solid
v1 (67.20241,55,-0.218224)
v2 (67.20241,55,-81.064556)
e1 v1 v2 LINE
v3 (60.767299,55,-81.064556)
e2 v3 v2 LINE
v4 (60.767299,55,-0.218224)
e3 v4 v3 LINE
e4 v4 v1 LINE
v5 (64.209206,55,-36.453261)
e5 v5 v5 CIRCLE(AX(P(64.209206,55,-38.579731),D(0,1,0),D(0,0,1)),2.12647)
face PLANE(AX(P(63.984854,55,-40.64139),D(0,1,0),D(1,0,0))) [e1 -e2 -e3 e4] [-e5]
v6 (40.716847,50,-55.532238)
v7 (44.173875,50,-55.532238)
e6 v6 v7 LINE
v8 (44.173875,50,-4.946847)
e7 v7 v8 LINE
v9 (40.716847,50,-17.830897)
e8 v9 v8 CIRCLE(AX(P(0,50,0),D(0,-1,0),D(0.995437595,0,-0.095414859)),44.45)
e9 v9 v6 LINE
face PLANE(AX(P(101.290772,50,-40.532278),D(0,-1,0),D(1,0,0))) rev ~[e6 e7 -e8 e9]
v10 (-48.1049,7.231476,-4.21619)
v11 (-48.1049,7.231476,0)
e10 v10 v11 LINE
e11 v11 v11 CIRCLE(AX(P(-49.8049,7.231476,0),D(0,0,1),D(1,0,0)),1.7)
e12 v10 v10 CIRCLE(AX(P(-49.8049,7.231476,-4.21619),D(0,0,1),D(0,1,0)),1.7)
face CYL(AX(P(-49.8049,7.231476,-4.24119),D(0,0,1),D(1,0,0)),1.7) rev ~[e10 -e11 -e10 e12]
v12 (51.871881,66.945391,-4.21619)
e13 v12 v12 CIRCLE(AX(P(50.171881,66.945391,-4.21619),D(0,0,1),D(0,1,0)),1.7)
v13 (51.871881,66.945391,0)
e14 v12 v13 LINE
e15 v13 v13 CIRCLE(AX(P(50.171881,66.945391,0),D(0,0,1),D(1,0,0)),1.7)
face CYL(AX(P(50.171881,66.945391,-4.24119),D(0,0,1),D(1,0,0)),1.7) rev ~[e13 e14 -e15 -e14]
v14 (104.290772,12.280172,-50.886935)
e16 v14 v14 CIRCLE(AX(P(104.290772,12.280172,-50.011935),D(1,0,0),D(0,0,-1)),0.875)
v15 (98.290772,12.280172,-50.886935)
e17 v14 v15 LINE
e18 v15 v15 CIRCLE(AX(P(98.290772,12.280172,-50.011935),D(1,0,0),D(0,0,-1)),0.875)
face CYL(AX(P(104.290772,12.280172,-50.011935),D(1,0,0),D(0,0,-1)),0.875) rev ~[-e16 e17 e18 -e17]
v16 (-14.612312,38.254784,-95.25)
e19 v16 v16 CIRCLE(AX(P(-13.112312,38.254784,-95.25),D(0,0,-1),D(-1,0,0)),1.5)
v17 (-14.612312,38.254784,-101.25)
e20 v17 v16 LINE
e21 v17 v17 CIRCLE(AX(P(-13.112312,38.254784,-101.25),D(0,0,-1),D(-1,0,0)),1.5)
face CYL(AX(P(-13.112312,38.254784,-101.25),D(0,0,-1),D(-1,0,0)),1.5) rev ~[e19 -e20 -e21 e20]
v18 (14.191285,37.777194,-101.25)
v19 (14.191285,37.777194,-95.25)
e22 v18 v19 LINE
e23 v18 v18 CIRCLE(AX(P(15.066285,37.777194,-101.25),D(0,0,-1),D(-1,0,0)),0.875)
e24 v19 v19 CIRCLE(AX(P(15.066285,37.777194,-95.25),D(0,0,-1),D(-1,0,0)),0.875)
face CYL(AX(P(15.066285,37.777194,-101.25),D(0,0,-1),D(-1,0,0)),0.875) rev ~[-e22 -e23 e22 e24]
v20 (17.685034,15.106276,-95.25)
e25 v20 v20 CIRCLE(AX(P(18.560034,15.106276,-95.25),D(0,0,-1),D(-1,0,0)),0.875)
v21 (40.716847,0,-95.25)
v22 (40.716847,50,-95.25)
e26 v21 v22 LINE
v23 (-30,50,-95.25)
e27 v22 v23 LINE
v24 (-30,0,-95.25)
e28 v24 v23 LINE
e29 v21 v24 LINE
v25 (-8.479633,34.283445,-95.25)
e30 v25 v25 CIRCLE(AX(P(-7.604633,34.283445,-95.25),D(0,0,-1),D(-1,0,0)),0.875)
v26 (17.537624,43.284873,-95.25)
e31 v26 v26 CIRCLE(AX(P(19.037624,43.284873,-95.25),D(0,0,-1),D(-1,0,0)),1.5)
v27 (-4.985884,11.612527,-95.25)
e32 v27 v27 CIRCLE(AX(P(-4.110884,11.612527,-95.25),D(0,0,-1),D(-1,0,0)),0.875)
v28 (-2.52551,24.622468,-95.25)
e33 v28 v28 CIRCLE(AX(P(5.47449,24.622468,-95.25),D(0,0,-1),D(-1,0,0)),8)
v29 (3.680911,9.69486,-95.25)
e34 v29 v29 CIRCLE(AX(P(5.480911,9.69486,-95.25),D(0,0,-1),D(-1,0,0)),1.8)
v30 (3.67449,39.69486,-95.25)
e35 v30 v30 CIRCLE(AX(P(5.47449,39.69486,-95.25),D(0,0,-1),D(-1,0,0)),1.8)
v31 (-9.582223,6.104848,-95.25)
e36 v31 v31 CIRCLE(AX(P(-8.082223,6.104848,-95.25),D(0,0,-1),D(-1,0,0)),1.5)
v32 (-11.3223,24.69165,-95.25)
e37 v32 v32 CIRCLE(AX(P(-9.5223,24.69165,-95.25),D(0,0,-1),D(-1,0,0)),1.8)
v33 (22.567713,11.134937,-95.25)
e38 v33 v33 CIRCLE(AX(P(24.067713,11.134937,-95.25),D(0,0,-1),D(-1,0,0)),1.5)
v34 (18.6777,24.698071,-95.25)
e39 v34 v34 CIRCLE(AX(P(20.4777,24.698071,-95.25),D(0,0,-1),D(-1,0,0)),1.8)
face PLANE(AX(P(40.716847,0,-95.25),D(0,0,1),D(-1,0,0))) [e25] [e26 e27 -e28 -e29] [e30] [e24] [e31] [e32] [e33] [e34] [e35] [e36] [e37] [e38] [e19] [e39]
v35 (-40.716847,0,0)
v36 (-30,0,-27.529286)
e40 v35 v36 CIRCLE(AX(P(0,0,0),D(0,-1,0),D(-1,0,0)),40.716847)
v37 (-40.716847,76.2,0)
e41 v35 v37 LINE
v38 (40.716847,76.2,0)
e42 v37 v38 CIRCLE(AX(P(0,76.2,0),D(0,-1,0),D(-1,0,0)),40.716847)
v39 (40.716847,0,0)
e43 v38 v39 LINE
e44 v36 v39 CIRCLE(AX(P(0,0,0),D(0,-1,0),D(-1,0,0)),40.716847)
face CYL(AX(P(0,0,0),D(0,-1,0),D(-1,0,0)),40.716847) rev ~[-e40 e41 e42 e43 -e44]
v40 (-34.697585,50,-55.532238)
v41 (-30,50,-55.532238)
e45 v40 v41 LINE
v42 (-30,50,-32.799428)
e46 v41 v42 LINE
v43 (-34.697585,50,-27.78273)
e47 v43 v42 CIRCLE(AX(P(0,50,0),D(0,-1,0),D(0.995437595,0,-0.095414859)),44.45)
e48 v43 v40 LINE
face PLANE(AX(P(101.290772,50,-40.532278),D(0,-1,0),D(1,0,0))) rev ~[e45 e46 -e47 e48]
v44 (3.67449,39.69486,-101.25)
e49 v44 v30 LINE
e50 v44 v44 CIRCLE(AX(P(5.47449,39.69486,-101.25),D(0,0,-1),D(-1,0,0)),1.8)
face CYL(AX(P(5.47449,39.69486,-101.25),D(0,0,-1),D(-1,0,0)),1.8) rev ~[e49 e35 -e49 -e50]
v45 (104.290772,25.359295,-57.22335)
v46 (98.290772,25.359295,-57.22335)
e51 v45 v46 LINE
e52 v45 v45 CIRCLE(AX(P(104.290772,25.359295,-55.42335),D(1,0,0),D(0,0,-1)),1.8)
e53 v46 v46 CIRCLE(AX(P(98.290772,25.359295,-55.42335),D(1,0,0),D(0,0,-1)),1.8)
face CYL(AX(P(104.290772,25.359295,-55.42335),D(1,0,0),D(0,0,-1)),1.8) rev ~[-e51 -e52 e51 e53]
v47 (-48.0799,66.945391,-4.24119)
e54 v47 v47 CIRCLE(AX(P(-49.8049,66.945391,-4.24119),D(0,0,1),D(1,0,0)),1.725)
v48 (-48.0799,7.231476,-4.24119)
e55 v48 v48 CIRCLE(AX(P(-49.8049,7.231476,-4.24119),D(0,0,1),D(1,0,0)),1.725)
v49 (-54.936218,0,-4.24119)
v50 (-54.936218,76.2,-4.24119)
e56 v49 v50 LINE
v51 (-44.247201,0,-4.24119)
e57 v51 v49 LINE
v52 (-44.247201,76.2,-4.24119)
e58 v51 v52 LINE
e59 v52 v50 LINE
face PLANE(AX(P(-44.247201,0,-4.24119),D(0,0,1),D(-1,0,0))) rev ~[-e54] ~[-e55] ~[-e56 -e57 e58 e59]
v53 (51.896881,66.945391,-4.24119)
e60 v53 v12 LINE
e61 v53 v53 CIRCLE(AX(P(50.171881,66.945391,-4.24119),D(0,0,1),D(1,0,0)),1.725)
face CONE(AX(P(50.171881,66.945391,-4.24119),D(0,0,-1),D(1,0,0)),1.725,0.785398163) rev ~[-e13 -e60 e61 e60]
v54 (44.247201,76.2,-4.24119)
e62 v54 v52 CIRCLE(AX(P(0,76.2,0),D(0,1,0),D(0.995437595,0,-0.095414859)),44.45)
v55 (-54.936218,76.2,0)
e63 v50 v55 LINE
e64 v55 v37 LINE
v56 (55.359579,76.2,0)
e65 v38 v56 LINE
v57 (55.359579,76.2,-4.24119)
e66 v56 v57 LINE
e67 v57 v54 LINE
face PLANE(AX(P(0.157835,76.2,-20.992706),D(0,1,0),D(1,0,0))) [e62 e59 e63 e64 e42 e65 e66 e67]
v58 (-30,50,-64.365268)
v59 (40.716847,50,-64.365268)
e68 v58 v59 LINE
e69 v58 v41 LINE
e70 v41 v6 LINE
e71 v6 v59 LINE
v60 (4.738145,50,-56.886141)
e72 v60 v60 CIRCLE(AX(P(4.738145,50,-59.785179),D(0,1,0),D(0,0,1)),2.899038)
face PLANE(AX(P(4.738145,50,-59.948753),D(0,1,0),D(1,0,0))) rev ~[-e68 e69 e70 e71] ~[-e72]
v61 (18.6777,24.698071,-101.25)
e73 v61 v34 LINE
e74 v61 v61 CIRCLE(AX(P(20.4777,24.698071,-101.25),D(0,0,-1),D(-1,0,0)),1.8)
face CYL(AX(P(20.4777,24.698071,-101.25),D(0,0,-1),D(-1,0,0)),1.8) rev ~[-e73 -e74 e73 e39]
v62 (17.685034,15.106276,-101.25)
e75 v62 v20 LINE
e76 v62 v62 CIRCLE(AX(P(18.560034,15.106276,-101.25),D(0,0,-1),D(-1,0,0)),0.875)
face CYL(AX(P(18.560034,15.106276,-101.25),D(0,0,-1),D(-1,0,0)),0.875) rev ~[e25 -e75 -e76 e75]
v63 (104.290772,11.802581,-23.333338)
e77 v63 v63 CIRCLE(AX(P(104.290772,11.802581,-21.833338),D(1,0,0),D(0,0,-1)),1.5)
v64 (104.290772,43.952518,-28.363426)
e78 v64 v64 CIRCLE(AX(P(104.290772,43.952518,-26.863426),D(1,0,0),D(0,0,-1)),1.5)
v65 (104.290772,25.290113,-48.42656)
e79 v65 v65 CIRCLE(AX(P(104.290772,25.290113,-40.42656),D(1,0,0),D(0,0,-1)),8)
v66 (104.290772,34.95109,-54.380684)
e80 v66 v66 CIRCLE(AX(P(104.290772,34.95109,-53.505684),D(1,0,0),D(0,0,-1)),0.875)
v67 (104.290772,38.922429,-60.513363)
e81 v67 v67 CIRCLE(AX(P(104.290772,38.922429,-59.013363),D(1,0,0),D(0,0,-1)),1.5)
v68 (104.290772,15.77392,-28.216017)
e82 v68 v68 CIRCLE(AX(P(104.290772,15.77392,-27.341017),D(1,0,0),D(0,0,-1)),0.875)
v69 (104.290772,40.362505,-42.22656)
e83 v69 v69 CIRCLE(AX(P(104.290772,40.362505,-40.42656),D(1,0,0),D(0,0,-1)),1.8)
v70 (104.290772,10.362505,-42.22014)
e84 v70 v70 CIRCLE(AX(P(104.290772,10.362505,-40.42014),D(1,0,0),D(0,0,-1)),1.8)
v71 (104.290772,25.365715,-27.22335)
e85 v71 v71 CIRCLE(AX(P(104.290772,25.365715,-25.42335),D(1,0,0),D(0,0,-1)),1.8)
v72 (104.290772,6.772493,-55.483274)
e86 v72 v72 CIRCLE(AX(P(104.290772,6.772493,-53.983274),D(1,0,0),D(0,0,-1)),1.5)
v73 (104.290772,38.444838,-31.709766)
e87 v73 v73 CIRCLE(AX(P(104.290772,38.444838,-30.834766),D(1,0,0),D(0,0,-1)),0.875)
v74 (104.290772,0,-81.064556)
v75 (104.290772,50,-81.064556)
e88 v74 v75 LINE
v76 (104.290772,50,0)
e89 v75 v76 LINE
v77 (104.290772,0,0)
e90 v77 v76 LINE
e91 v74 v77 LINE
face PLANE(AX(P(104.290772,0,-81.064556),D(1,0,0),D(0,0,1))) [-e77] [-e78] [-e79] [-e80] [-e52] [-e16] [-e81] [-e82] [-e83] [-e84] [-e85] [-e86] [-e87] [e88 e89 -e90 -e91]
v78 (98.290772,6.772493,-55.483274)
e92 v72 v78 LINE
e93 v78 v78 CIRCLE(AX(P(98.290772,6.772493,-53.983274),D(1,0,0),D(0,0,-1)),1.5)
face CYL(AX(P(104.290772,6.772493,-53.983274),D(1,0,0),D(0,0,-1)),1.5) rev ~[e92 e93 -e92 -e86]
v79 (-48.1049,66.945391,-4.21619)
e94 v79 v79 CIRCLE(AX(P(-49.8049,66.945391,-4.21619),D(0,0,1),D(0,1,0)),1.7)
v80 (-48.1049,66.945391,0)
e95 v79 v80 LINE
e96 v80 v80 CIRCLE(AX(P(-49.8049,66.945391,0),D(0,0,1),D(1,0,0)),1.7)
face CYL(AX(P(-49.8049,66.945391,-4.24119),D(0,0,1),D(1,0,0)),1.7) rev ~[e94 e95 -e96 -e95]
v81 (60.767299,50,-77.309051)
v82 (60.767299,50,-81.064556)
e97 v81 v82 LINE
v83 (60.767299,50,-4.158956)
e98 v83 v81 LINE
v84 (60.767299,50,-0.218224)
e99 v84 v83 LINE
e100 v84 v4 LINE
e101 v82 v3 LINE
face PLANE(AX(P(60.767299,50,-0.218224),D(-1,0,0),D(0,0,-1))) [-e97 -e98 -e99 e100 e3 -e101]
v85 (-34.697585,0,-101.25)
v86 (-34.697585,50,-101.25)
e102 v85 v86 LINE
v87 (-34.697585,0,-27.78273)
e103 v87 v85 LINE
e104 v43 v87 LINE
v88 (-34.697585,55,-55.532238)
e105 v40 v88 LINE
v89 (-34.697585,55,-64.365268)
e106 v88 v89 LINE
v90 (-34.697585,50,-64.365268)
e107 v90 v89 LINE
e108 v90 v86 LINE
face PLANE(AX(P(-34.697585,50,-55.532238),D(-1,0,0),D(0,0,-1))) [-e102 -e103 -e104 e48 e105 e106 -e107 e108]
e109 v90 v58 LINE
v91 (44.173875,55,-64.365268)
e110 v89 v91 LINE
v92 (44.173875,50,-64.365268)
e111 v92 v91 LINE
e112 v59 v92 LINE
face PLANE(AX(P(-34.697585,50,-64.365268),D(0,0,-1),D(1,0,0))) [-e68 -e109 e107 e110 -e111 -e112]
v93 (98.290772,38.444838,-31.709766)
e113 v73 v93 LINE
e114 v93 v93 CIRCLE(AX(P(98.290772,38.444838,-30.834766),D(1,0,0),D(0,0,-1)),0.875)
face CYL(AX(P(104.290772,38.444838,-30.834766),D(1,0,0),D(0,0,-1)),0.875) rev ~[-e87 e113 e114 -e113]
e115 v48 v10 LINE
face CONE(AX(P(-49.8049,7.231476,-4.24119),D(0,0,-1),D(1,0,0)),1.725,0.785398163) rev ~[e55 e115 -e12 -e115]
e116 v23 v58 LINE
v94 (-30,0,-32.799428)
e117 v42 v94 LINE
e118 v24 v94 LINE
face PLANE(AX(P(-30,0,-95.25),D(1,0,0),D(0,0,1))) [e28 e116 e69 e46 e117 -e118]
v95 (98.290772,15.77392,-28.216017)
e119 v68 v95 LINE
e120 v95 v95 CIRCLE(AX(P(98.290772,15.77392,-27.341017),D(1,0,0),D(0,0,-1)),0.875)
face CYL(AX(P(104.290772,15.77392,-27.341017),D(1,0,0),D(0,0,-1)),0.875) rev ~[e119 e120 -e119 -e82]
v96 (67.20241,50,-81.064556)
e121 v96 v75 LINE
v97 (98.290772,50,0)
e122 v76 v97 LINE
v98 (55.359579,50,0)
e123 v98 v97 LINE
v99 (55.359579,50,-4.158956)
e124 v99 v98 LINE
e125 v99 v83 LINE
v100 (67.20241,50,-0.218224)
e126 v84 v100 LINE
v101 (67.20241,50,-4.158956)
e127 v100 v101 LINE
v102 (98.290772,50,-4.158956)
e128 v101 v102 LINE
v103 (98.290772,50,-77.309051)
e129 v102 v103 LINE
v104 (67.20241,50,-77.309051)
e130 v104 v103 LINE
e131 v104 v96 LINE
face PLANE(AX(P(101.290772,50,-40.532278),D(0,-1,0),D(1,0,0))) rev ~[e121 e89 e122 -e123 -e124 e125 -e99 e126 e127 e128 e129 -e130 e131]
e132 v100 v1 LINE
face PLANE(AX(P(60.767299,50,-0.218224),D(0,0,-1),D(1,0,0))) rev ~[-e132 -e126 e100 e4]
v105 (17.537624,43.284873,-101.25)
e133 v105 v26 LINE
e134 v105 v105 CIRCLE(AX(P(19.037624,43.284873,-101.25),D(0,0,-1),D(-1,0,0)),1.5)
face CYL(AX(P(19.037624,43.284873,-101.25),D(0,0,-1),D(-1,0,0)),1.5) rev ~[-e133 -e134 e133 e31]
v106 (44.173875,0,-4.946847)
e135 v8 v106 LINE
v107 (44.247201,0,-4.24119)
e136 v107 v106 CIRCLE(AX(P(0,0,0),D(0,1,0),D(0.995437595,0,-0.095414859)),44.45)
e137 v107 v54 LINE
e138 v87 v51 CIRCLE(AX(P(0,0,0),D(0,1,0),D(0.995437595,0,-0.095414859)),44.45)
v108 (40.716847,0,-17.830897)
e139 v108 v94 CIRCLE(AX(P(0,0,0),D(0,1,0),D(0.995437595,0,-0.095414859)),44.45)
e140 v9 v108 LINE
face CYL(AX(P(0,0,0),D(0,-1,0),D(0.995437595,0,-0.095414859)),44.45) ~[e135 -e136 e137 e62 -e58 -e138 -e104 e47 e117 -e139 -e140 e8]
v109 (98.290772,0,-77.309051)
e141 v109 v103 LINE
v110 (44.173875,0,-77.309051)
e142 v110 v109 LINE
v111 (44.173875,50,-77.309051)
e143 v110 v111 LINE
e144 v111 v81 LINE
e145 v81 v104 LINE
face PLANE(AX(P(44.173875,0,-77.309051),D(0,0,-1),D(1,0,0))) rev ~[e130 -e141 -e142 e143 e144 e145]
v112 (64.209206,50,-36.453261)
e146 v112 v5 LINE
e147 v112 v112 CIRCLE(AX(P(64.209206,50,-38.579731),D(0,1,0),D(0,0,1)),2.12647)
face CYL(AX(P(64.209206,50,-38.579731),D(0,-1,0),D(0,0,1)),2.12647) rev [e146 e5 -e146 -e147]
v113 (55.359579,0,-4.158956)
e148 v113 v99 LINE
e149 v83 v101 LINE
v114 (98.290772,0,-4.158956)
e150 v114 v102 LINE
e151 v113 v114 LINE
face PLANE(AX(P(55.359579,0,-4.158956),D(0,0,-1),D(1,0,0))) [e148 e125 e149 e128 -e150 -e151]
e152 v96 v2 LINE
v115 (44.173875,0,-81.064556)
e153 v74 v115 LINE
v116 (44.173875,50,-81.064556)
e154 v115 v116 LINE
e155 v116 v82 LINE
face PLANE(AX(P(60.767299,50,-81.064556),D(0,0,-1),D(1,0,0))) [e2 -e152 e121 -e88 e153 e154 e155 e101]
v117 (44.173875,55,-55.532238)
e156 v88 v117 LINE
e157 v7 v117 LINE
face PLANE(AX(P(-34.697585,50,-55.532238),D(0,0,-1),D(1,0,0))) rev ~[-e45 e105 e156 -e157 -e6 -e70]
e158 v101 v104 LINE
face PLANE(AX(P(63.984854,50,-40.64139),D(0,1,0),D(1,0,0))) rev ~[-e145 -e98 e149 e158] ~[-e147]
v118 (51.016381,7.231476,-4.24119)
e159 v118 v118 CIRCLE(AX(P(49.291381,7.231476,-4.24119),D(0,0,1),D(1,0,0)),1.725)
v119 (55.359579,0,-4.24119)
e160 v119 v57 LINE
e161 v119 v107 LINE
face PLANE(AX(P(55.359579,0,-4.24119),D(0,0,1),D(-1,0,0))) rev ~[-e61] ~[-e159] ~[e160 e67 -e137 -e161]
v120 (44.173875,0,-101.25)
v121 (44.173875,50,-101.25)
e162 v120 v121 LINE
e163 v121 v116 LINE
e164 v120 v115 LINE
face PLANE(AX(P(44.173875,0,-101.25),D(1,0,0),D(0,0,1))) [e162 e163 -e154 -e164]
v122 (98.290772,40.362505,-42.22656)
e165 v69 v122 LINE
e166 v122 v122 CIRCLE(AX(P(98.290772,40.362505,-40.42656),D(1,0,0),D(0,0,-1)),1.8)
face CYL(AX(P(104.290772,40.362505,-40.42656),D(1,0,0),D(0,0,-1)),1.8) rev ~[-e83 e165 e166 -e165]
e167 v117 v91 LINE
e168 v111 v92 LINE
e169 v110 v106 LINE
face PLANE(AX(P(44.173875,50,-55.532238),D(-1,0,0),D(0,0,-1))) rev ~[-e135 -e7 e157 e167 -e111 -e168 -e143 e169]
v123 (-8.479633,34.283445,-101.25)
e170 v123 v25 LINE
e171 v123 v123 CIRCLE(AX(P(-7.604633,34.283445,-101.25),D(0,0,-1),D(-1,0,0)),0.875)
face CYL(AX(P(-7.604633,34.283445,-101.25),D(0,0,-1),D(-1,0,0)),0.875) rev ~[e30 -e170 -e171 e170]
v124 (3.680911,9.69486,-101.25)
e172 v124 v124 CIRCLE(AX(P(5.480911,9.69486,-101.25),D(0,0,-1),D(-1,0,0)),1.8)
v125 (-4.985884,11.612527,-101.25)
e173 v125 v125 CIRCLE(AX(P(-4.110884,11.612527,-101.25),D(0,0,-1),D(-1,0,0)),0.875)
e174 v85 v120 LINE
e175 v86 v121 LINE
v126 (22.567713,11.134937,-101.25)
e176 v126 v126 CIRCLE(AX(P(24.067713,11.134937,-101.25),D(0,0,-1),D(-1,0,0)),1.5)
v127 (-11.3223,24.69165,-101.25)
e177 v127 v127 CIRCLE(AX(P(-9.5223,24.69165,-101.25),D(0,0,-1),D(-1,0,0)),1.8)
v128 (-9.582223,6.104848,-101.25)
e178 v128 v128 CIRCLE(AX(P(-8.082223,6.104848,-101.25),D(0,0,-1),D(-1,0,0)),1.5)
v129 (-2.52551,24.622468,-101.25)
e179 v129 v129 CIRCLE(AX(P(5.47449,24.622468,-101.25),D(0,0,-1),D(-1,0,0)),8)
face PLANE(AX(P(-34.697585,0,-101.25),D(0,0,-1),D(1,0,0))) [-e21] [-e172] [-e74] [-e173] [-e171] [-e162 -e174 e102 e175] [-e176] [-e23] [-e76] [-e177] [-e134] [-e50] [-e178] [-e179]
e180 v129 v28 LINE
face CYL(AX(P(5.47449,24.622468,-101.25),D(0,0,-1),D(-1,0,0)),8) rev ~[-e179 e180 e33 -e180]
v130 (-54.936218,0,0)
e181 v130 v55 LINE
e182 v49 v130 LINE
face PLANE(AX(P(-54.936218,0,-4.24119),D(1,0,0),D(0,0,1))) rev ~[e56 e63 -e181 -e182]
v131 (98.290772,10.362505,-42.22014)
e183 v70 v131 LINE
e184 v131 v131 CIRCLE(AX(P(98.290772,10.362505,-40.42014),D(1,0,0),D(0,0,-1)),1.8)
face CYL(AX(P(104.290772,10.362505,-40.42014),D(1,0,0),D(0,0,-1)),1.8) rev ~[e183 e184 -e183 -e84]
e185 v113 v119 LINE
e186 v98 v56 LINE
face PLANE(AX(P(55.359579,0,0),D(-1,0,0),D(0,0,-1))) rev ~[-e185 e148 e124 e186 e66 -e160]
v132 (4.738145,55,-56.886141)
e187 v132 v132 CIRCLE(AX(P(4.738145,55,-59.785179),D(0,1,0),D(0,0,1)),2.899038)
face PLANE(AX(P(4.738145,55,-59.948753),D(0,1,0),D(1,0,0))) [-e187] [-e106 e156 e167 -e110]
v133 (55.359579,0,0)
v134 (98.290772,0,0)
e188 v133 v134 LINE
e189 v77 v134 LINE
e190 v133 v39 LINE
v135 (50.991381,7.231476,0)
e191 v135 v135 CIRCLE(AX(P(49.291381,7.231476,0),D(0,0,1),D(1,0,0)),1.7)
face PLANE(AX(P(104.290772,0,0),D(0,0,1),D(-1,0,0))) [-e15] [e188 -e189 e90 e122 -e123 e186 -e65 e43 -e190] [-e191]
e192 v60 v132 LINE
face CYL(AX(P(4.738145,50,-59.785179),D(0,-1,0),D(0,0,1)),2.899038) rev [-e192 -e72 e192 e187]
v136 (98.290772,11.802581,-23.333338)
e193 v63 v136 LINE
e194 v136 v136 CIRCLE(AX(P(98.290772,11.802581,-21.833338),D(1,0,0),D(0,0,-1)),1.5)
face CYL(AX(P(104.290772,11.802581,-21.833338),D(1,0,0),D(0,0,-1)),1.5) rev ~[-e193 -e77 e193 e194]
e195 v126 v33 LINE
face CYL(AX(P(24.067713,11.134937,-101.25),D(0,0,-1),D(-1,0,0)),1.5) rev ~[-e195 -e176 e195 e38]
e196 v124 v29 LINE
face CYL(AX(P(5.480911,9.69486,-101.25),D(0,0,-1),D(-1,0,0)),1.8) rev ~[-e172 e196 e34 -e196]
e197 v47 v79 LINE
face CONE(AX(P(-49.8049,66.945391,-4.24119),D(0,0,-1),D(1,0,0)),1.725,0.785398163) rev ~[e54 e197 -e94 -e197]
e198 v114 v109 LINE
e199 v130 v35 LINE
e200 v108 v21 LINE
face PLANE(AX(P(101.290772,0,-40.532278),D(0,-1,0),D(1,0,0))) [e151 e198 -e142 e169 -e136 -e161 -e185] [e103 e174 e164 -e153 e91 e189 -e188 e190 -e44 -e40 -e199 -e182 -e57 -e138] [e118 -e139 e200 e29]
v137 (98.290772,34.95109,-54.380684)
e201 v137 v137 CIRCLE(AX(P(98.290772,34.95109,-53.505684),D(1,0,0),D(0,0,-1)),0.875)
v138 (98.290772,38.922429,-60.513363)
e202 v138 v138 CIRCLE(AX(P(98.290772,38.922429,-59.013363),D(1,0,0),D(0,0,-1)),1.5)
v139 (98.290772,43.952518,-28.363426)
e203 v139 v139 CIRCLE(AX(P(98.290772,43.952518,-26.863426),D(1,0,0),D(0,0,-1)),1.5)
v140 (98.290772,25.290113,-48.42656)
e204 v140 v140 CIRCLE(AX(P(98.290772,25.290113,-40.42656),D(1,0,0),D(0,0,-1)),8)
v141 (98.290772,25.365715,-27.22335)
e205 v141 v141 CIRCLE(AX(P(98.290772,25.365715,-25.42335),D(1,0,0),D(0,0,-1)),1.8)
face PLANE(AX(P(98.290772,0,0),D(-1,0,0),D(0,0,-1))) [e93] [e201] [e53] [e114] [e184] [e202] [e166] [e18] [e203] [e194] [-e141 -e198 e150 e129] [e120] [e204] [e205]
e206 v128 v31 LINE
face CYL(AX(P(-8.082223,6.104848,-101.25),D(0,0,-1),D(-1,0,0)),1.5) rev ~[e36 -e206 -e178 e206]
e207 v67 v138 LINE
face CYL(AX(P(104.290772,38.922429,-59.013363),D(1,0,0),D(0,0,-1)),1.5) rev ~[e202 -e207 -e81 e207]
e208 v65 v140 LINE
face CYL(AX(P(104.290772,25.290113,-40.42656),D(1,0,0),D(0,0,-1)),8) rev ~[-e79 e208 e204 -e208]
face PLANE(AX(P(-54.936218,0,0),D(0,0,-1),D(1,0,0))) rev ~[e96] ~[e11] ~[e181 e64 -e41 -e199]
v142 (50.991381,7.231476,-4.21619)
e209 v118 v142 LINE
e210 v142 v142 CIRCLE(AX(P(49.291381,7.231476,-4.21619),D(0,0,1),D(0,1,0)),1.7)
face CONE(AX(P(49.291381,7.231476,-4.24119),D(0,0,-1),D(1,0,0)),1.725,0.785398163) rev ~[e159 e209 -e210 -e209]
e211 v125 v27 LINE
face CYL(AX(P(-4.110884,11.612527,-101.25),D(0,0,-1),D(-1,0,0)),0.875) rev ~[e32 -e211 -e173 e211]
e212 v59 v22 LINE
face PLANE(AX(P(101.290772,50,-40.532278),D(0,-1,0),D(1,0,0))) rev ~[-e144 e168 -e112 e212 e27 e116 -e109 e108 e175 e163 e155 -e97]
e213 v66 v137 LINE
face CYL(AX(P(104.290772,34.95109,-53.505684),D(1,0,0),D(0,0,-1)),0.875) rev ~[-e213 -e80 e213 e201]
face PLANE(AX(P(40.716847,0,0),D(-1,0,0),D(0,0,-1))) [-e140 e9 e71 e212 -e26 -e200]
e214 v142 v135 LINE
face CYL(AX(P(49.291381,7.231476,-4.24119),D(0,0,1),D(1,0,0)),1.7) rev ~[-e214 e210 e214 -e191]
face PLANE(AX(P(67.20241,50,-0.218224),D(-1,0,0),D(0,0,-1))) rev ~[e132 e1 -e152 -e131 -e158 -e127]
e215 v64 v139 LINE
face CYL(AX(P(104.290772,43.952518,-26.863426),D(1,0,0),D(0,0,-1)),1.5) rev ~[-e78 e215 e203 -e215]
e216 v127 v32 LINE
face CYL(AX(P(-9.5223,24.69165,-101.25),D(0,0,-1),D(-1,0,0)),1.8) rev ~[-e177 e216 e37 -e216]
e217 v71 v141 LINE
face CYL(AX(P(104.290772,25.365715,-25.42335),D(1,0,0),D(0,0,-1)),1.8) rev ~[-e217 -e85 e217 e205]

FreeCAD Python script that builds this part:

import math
import FreeCAD as App
import Part
import Sketcher

V = App.Vector

doc = App.newDocument("Part")
body = doc.addObject("PartDesign::Body", "Body")

# Sketch on XZ plane
sketch1 = body.newObject("Sketcher::SketchObject", "Sketch")
sketch1.AttachmentSupport = (doc.getObject("XZ_Plane"), [""])
sketch1.MapMode = "FlatFace"
sketch1.addGeometry([
    Part.LineSegment(V(-44.2, -4.2, 0), V(-54.9, -4.2, 0)),  # 0
    Part.LineSegment(V(-54.9, -4.2, 0), V(-54.9, 0, 0)),  # 1
    Part.LineSegment(V(-54.9, 0, 0), V(-40.7, 0, 0)),  # 2
    Part.ArcOfCircle(Part.Circle(V(0, 0, 0), V(0, 0, 1), 40.7), math.radians(180), math.radians(360)),  # 3
    Part.LineSegment(V(40.7, 0, 0), V(55.4, 0, 0)),  # 4
    Part.LineSegment(V(55.4, 0, 0), V(55.4, -4.2, 0)),  # 5
    Part.LineSegment(V(55.4, -4.2, 0), V(44.2, -4.2, 0)),  # 6
    Part.ArcOfCircle(Part.Circle(V(0, 0, 0), V(0, 0, 1), 44.5), math.radians(-175), math.radians(-5)),  # 7
], False)
sketch1.addConstraint([
    Sketcher.Constraint("Coincident", 0, 2, 1, 1),
    Sketcher.Constraint("Coincident", 1, 2, 2, 1),
    Sketcher.Constraint("Coincident", 2, 2, 3, 1),
    Sketcher.Constraint("Coincident", 3, 2, 4, 1),
    Sketcher.Constraint("Coincident", 4, 2, 5, 1),
    Sketcher.Constraint("Coincident", 5, 2, 6, 1),
    Sketcher.Constraint("Coincident", 6, 2, 7, 2),
    Sketcher.Constraint("Coincident", 7, 1, 0, 1),
    Sketcher.Constraint("Horizontal", 0),
    Sketcher.Constraint("Vertical", 1),
    Sketcher.Constraint("Horizontal", 2),
    Sketcher.Constraint("Horizontal", 4),
    Sketcher.Constraint("Vertical", 5),
    Sketcher.Constraint("Horizontal", 6),
    Sketcher.Constraint("Coincident", 3, 3, -1, 1),
    Sketcher.Constraint("Coincident", 7, 3, -1, 1),
    Sketcher.Constraint("PointOnObject", 1, 2, -1),
    Sketcher.Constraint("PointOnObject", 3, 2, -1),
    Sketcher.Constraint("Horizontal", 0, 2, 5, 2),
    Sketcher.Constraint("Radius", 7, 44.45),
    Sketcher.Constraint("Radius", 3, 40.716847),
    Sketcher.Constraint("DistanceX", 2, 1, 2, 2, 14.219371),
    Sketcher.Constraint("DistanceX", 6, 2, 6, 1, 11.112378),
    Sketcher.Constraint("DistanceY", 1, 1, 1, 2, 4.24119),
])
pad1 = body.newObject("PartDesign::Pad", "Pad")
pad1.Profile = sketch1
pad1.Length = 76.2
pad1.Reversed = True

# Sketch on XY plane
sketch2 = body.newObject("Sketcher::SketchObject", "Sketch001")
sketch2.AttachmentSupport = (doc.getObject("XY_Plane"), [""])
sketch2.MapMode = "FlatFace"
sketch2.AttachmentOffset = App.Placement(V(0, 0, -4.24119), App.Rotation())
sketch2.addGeometry([
    Part.Circle(V(50.2, 66.9, 0), V(0, 0, 1), 1.7),
    Part.Circle(V(49.3, 7.2, 0), V(0, 0, 1), 1.7),
    Part.Circle(V(-49.8, 7.2, 0), V(0, 0, 1), 1.7),
    Part.Circle(V(-49.8, 66.9, 0), V(0, 0, 1), 1.7),
], False)
sketch2.addConstraint([
    Sketcher.Constraint("Equal", 0, 1),
    Sketcher.Constraint("Equal", 1, 2),
    Sketcher.Constraint("Equal", 2, 3),
    Sketcher.Constraint("Horizontal", 1, 3, 2, 3),
    Sketcher.Constraint("Horizontal", 0, 3, 3, 3),
    Sketcher.Constraint("Vertical", 2, 3, 3, 3),
    Sketcher.Constraint("Diameter", 0, 3.4),
    Sketcher.Constraint("DistanceX", 2, 3, -1, 1, 49.8049),
    Sketcher.Constraint("DistanceX", 1, 3, 0, 3, 0.8805),
    Sketcher.Constraint("DistanceX", -1, 1, 0, 3, 50.171881),
    Sketcher.Constraint("DistanceY", -1, 1, 0, 3, 66.945391),
    Sketcher.Constraint("DistanceY", -1, 1, 1, 3, 7.231476),
])
doc.recompute()
hole = body.newObject("PartDesign::Hole", "Hole")
hole.Profile = sketch2
hole.ThreadType = "None"
hole.Diameter = 3.4
hole.DepthType = "ThroughAll"
hole.HoleCutType = "Countersink"
hole.HoleCutDiameter = 3.45
hole.HoleCutCountersinkAngle = 90
hole.Reversed = True

# Sketch on XZ plane
sketch3 = body.newObject("Sketcher::SketchObject", "Sketch002")
sketch3.AttachmentSupport = (doc.getObject("XZ_Plane"), [""])
sketch3.MapMode = "FlatFace"
sketch3.addGeometry([
    Part.LineSegment(V(-30, -95.2, 0), V(-30, -27.5, 0)),  # 0
    Part.LineSegment(V(-30, -27.5, 0), V(-34.7, -27.5, 0)),  # 1
    Part.LineSegment(V(-34.7, -27.5, 0), V(-34.7, -101.2, 0)),  # 2
    Part.LineSegment(V(-34.7, -101.2, 0), V(44.2, -101.2, 0)),  # 3
    Part.LineSegment(V(44.2, -101.2, 0), V(44.2, 0, 0)),  # 4
    Part.LineSegment(V(44.2, 0, 0), V(40.7, 0, 0)),  # 5
    Part.LineSegment(V(40.7, 0, 0), V(40.7, -95.2, 0)),  # 6
    Part.LineSegment(V(40.7, -95.2, 0), V(-30, -95.2, 0)),  # 7
], False)
sketch3.addConstraint([
    Sketcher.Constraint("Coincident", 0, 2, 1, 1),
    Sketcher.Constraint("Coincident", 1, 2, 2, 1),
    Sketcher.Constraint("Coincident", 2, 2, 3, 1),
    Sketcher.Constraint("Coincident", 3, 2, 4, 1),
    Sketcher.Constraint("Coincident", 4, 2, 5, 1),
    Sketcher.Constraint("Coincident", 5, 2, 6, 1),
    Sketcher.Constraint("Coincident", 6, 2, 7, 1),
    Sketcher.Constraint("Coincident", 7, 2, 0, 1),
    Sketcher.Constraint("Vertical", 0),
    Sketcher.Constraint("Horizontal", 1),
    Sketcher.Constraint("Vertical", 2),
    Sketcher.Constraint("Horizontal", 3),
    Sketcher.Constraint("Vertical", 4),
    Sketcher.Constraint("Horizontal", 5),
    Sketcher.Constraint("Vertical", 6),
    Sketcher.Constraint("Horizontal", 7),
    Sketcher.Constraint("PointOnObject", 4, 2, -1),
    Sketcher.Constraint("DistanceX", 0, 2, -1, 1, 30.0),
    Sketcher.Constraint("DistanceY", 3, 2, 6, 2, 6.0),
    Sketcher.Constraint("DistanceY", 4, 1, 4, 2, 101.25),
    Sketcher.Constraint("DistanceX", 3, 1, 3, 2, 78.871459),
    Sketcher.Constraint("DistanceX", 5, 2, 5, 1, 3.457028),
    Sketcher.Constraint("DistanceX", 1, 2, 1, 1, 4.697585),
    Sketcher.Constraint("DistanceY", 0, 1, 0, 2, 67.720714),
])
pad2 = body.newObject("PartDesign::Pad", "Pad001")
pad2.Profile = sketch3
pad2.Length = 50
pad2.Reversed = True

# Sketch on XY plane
sketch4 = body.newObject("Sketcher::SketchObject", "Sketch003")
sketch4.AttachmentSupport = (doc.getObject("XY_Plane"), [""])
sketch4.MapMode = "FlatFace"
sketch4.AttachmentOffset = App.Placement(V(0, 0, -101.25), App.Rotation())
sketch4.addGeometry(Part.Circle(V(5, 25, 0), V(0, 0, 1), 8), False)
sketch4.addConstraint([
    Sketcher.Constraint("Diameter", 0, 16.0),
    Sketcher.Constraint("DistanceX", -1, 1, 0, 3, 5.47449),
    Sketcher.Constraint("DistanceY", -1, 1, 0, 3, 24.622468),
])
pocket1 = body.newObject("PartDesign::Pocket", "Pocket")
pocket1.Profile = sketch4
pocket1.Type = "UpToFirst"
pocket1.Reversed = True

# Sketch on XY plane
sketch5 = body.newObject("Sketcher::SketchObject", "Sketch004")
sketch5.AttachmentSupport = (doc.getObject("XY_Plane"), [""])
sketch5.MapMode = "FlatFace"
sketch5.AttachmentOffset = App.Placement(V(0, 0, -101.25), App.Rotation())
sketch5.addGeometry(Part.Circle(V(15.1, 37.8, 0), V(0, 0, 1), 0.9), False)
sketch5.addConstraint([
    Sketcher.Constraint("Diameter", 0, 1.75),
    Sketcher.Constraint("DistanceX", -1, 1, 0, 3, 15.066285),
    Sketcher.Constraint("DistanceY", -1, 1, 0, 3, 37.777194),
])
pocket2 = body.newObject("PartDesign::Pocket", "Pocket001")
pocket2.Profile = sketch5
pocket2.Type = "UpToFirst"
pocket2.Reversed = True

# Sketch on XY plane
sketch6 = body.newObject("Sketcher::SketchObject", "Sketch005")
sketch6.AttachmentSupport = (doc.getObject("XY_Plane"), [""])
sketch6.MapMode = "FlatFace"
sketch6.AttachmentOffset = App.Placement(V(0, 0, -101.25), App.Rotation())
sketch6.addGeometry(Part.Circle(V(-7.6, 34.3, 0), V(0, 0, 1), 0.9), False)
sketch6.addConstraint([
    Sketcher.Constraint("Diameter", 0, 1.75),
    Sketcher.Constraint("DistanceX", 0, 3, -1, 1, 7.604633),
    Sketcher.Constraint("DistanceY", -1, 1, 0, 3, 34.283445),
])
pocket3 = body.newObject("PartDesign::Pocket", "Pocket002")
pocket3.Profile = sketch6
pocket3.Type = "UpToFirst"
pocket3.Reversed = True

# Sketch on XY plane
sketch7 = body.newObject("Sketcher::SketchObject", "Sketch006")
sketch7.AttachmentSupport = (doc.getObject("XY_Plane"), [""])
sketch7.MapMode = "FlatFace"
sketch7.AttachmentOffset = App.Placement(V(0, 0, -101.25), App.Rotation())
sketch7.addGeometry(Part.Circle(V(-4.1, 11.6, 0), V(0, 0, 1), 0.9), False)
sketch7.addConstraint([
    Sketcher.Constraint("Diameter", 0, 1.75),
    Sketcher.Constraint("DistanceX", 0, 3, -1, 1, 4.110884),
    Sketcher.Constraint("DistanceY", -1, 1, 0, 3, 11.612527),
])
pocket4 = body.newObject("PartDesign::Pocket", "Pocket003")
pocket4.Profile = sketch7
pocket4.Type = "UpToFirst"
pocket4.Reversed = True

# Sketch on XY plane
sketch8 = body.newObject("Sketcher::SketchObject", "Sketch007")
sketch8.AttachmentSupport = (doc.getObject("XY_Plane"), [""])
sketch8.MapMode = "FlatFace"
sketch8.AttachmentOffset = App.Placement(V(0, 0, -101.25), App.Rotation())
sketch8.addGeometry(Part.Circle(V(18.6, 15.1, 0), V(0, 0, 1), 0.9), False)
sketch8.addConstraint([
    Sketcher.Constraint("Diameter", 0, 1.75),
    Sketcher.Constraint("DistanceX", -1, 1, 0, 3, 18.560034),
    Sketcher.Constraint("DistanceY", -1, 1, 0, 3, 15.106276),
])
pocket5 = body.newObject("PartDesign::Pocket", "Pocket004")
pocket5.Profile = sketch8
pocket5.Type = "UpToFirst"
pocket5.Reversed = True

# Sketch on XY plane
sketch9 = body.newObject("Sketcher::SketchObject", "Sketch008")
sketch9.AttachmentSupport = (doc.getObject("XY_Plane"), [""])
sketch9.MapMode = "FlatFace"
sketch9.AttachmentOffset = App.Placement(V(0, 0, -101.25), App.Rotation())
sketch9.addGeometry(Part.Circle(V(5.5, 39.7, 0), V(0, 0, 1), 1.8), False)
sketch9.addConstraint([
    Sketcher.Constraint("Diameter", 0, 3.6),
    Sketcher.Constraint("DistanceX", -1, 1, 0, 3, 5.47449),
    Sketcher.Constraint("DistanceY", -1, 1, 0, 3, 39.69486),
])
pocket6 = body.newObject("PartDesign::Pocket", "Pocket005")
pocket6.Profile = sketch9
pocket6.Type = "UpToFirst"
pocket6.Reversed = True

# Sketch on XY plane
sketch10 = body.newObject("Sketcher::SketchObject", "Sketch009")
sketch10.AttachmentSupport = (doc.getObject("XY_Plane"), [""])
sketch10.MapMode = "FlatFace"
sketch10.AttachmentOffset = App.Placement(V(0, 0, -101.25), App.Rotation())
sketch10.addGeometry(Part.Circle(V(-9.5, 24.7, 0), V(0, 0, 1), 1.8), False)
sketch10.addConstraint([
    Sketcher.Constraint("Diameter", 0, 3.6),
    Sketcher.Constraint("DistanceX", 0, 3, -1, 1, 9.5223),
    Sketcher.Constraint("DistanceY", -1, 1, 0, 3, 24.69165),
])
pocket7 = body.newObject("PartDesign::Pocket", "Pocket006")
pocket7.Profile = sketch10
pocket7.Type = "UpToFirst"
pocket7.Reversed = True

# Sketch on XY plane
sketch11 = body.newObject("Sketcher::SketchObject", "Sketch010")
sketch11.AttachmentSupport = (doc.getObject("XY_Plane"), [""])
sketch11.MapMode = "FlatFace"
sketch11.AttachmentOffset = App.Placement(V(0, 0, -101.25), App.Rotation())
sketch11.addGeometry(Part.Circle(V(5.5, 9.7, 0), V(0, 0, 1), 1.8), False)
sketch11.addConstraint([
    Sketcher.Constraint("Diameter", 0, 3.6),
    Sketcher.Constraint("DistanceX", -1, 1, 0, 3, 5.480911),
    Sketcher.Constraint("DistanceY", -1, 1, 0, 3, 9.69486),
])
pocket8 = body.newObject("PartDesign::Pocket", "Pocket007")
pocket8.Profile = sketch11
pocket8.Type = "UpToFirst"
pocket8.Reversed = True

# Sketch on XY plane
sketch12 = body.newObject("Sketcher::SketchObject", "Sketch011")
sketch12.AttachmentSupport = (doc.getObject("XY_Plane"), [""])
sketch12.MapMode = "FlatFace"
sketch12.AttachmentOffset = App.Placement(V(0, 0, -101.25), App.Rotation())
sketch12.addGeometry(Part.Circle(V(20.5, 24.7, 0), V(0, 0, 1), 1.8), False)
sketch12.addConstraint([
    Sketcher.Constraint("Diameter", 0, 3.6),
    Sketcher.Constraint("DistanceX", -1, 1, 0, 3, 20.4777),
    Sketcher.Constraint("DistanceY", -1, 1, 0, 3, 24.698071),
])
pocket9 = body.newObject("PartDesign::Pocket", "Pocket008")
pocket9.Profile = sketch12
pocket9.Type = "UpToFirst"
pocket9.Reversed = True

# Sketch on XY plane
sketch13 = body.newObject("Sketcher::SketchObject", "Sketch012")
sketch13.AttachmentSupport = (doc.getObject("XY_Plane"), [""])
sketch13.MapMode = "FlatFace"
sketch13.AttachmentOffset = App.Placement(V(0, 0, -101.25), App.Rotation())
sketch13.addGeometry(Part.Circle(V(19, 43.3, 0), V(0, 0, 1), 1.5), False)
sketch13.addConstraint([
    Sketcher.Constraint("Diameter", 0, 3.0),
    Sketcher.Constraint("DistanceX", -1, 1, 0, 3, 19.037624),
    Sketcher.Constraint("DistanceY", -1, 1, 0, 3, 43.284873),
])
pocket10 = body.newObject("PartDesign::Pocket", "Pocket009")
pocket10.Profile = sketch13
pocket10.Type = "UpToFirst"
pocket10.Reversed = True

# Sketch on XY plane
sketch14 = body.newObject("Sketcher::SketchObject", "Sketch013")
sketch14.AttachmentSupport = (doc.getObject("XY_Plane"), [""])
sketch14.MapMode = "FlatFace"
sketch14.AttachmentOffset = App.Placement(V(0, 0, -101.25), App.Rotation())
sketch14.addGeometry(Part.Circle(V(-13.1, 38.3, 0), V(0, 0, 1), 1.5), False)
sketch14.addConstraint([
    Sketcher.Constraint("Diameter", 0, 3.0),
    Sketcher.Constraint("DistanceX", 0, 3, -1, 1, 13.112312),
    Sketcher.Constraint("DistanceY", -1, 1, 0, 3, 38.254784),
])
pocket11 = body.newObject("PartDesign::Pocket", "Pocket010")
pocket11.Profile = sketch14
pocket11.Type = "UpToFirst"
pocket11.Reversed = True

# Sketch on XY plane
sketch15 = body.newObject("Sketcher::SketchObject", "Sketch014")
sketch15.AttachmentSupport = (doc.getObject("XY_Plane"), [""])
sketch15.MapMode = "FlatFace"
sketch15.AttachmentOffset = App.Placement(V(0, 0, -101.25), App.Rotation())
sketch15.addGeometry(Part.Circle(V(-8.1, 6.1, 0), V(0, 0, 1), 1.5), False)
sketch15.addConstraint([
    Sketcher.Constraint("Diameter", 0, 3.0),
    Sketcher.Constraint("DistanceX", 0, 3, -1, 1, 8.082223),
    Sketcher.Constraint("DistanceY", -1, 1, 0, 3, 6.104848),
])
pocket12 = body.newObject("PartDesign::Pocket", "Pocket011")
pocket12.Profile = sketch15
pocket12.Type = "UpToFirst"
pocket12.Reversed = True

# Sketch on XY plane
sketch16 = body.newObject("Sketcher::SketchObject", "Sketch015")
sketch16.AttachmentSupport = (doc.getObject("XY_Plane"), [""])
sketch16.MapMode = "FlatFace"
sketch16.AttachmentOffset = App.Placement(V(0, 0, -101.25), App.Rotation())
sketch16.addGeometry(Part.Circle(V(24.1, 11.1, 0), V(0, 0, 1), 1.5), False)
sketch16.addConstraint([
    Sketcher.Constraint("Diameter", 0, 3.0),
    Sketcher.Constraint("DistanceX", -1, 1, 0, 3, 24.067713),
    Sketcher.Constraint("DistanceY", -1, 1, 0, 3, 11.134937),
])
pocket13 = body.newObject("PartDesign::Pocket", "Pocket012")
pocket13.Profile = sketch16
pocket13.Type = "UpToFirst"
pocket13.Reversed = True

# Sketch on XZ plane
sketch17 = body.newObject("Sketcher::SketchObject", "Sketch016")
sketch17.AttachmentSupport = (doc.getObject("XZ_Plane"), [""])
sketch17.MapMode = "FlatFace"
sketch17.addGeometry([
    Part.LineSegment(V(44.2, -77.3, 0), V(44.2, -81.1, 0)),  # 0
    Part.LineSegment(V(44.2, -81.1, 0), V(98.3, -81.1, 0)),  # 1
    Part.LineSegment(V(98.3, -81.1, 0), V(98.3, -77.3, 0)),  # 2
    Part.LineSegment(V(98.3, -77.3, 0), V(44.2, -77.3, 0)),  # 3
    Part.LineSegment(V(55.4, 0, 0), V(55.4, -4.2, 0)),  # 4
    Part.LineSegment(V(55.4, -4.2, 0), V(98.3, -4.2, 0)),  # 5
    Part.LineSegment(V(98.3, -4.2, 0), V(98.3, 0, 0)),  # 6
    Part.LineSegment(V(98.3, 0, 0), V(55.4, 0, 0)),  # 7
], False)
sketch17.addConstraint([
    Sketcher.Constraint("Coincident", 0, 2, 1, 1),
    Sketcher.Constraint("Coincident", 1, 2, 2, 1),
    Sketcher.Constraint("Coincident", 2, 2, 3, 1),
    Sketcher.Constraint("Coincident", 3, 2, 0, 1),
    Sketcher.Constraint("Coincident", 4, 2, 5, 1),
    Sketcher.Constraint("Coincident", 5, 2, 6, 1),
    Sketcher.Constraint("Coincident", 6, 2, 7, 1),
    Sketcher.Constraint("Coincident", 7, 2, 4, 1),
    Sketcher.Constraint("Vertical", 0),
    Sketcher.Constraint("Horizontal", 1),
    Sketcher.Constraint("Vertical", 2),
    Sketcher.Constraint("Horizontal", 3),
    Sketcher.Constraint("Vertical", 4),
    Sketcher.Constraint("Horizontal", 5),
    Sketcher.Constraint("Vertical", 6),
    Sketcher.Constraint("Horizontal", 7),
    Sketcher.Constraint("PointOnObject", 6, 2, -1),
    Sketcher.Constraint("Vertical", 2, 2, 5, 2),
    Sketcher.Constraint("DistanceY", 0, 2, 4, 2, 76.9056),
    Sketcher.Constraint("DistanceX", 1, 1, 1, 2, 54.116897),
    Sketcher.Constraint("DistanceX", 5, 1, 5, 2, 42.931193),
    Sketcher.Constraint("DistanceY", 0, 2, 0, 1, 3.755504),
    Sketcher.Constraint("DistanceY", 4, 2, 4, 1, 4.158956),
    Sketcher.Constraint("DistanceX", -1, 1, 1, 2, 98.290772),
])
pad3 = body.newObject("PartDesign::Pad", "Pad002")
pad3.Profile = sketch17
pad3.Length = 50
pad3.Reversed = True

# Sketch on XZ plane
sketch18 = body.newObject("Sketcher::SketchObject", "Sketch017")
sketch18.AttachmentSupport = (doc.getObject("XZ_Plane"), [""])
sketch18.MapMode = "FlatFace"
sketch18.addGeometry([
    Part.LineSegment(V(98, -81, 0), V(104, -81, 0)),
    Part.LineSegment(V(104, -81, 0), V(104, 0, 0)),
    Part.LineSegment(V(104, 0, 0), V(98, 0, 0)),
    Part.LineSegment(V(98, 0, 0), V(98, -81, 0)),
], False)
sketch18.addConstraint([
    Sketcher.Constraint("Coincident", 0, 2, 1, 1),
    Sketcher.Constraint("Coincident", 1, 2, 2, 1),
    Sketcher.Constraint("Coincident", 2, 2, 3, 1),
    Sketcher.Constraint("Coincident", 3, 2, 0, 1),
    Sketcher.Constraint("Horizontal", 0),
    Sketcher.Constraint("Vertical", 1),
    Sketcher.Constraint("Horizontal", 2),
    Sketcher.Constraint("Vertical", 3),
    Sketcher.Constraint("PointOnObject", 1, 2, -1),
    Sketcher.Constraint("DistanceX", 0, 1, 0, 2, 6.0),
    Sketcher.Constraint("DistanceY", 1, 1, 1, 2, 81.064556),
    Sketcher.Constraint("DistanceX", -1, 1, 0, 2, 104.290772),
])
pad4 = body.newObject("PartDesign::Pad", "Pad003")
pad4.Profile = sketch18
pad4.Length = 50
pad4.Reversed = True

# Sketch on YZ plane
sketch19 = body.newObject("Sketcher::SketchObject", "Sketch018")
sketch19.AttachmentSupport = (doc.getObject("YZ_Plane"), [""])
sketch19.MapMode = "FlatFace"
sketch19.AttachmentOffset = App.Placement(V(0, 0, 104.290772), App.Rotation())
sketch19.addGeometry(Part.Circle(V(25, -40, 0), V(0, 0, 1), 8), False)
sketch19.addConstraint([
    Sketcher.Constraint("Diameter", 0, 16.0),
    Sketcher.Constraint("DistanceY", 0, 3, -1, 1, 40.42656),
    Sketcher.Constraint("DistanceX", -1, 1, 0, 3, 25.290113),
])
pocket14 = body.newObject("PartDesign::Pocket", "Pocket013")
pocket14.Profile = sketch19
pocket14.Type = "UpToFirst"

# Sketch on YZ plane
sketch20 = body.newObject("Sketcher::SketchObject", "Sketch019")
sketch20.AttachmentSupport = (doc.getObject("YZ_Plane"), [""])
sketch20.MapMode = "FlatFace"
sketch20.AttachmentOffset = App.Placement(V(0, 0, 104.290772), App.Rotation())
sketch20.addGeometry(Part.Circle(V(38.9, -59, 0), V(0, 0, 1), 1.5), False)
sketch20.addConstraint([
    Sketcher.Constraint("Diameter", 0, 3.0),
    Sketcher.Constraint("DistanceX", -1, 1, 0, 3, 38.922429),
    Sketcher.Constraint("DistanceY", 0, 3, -1, 1, 59.013363),
])
pocket15 = body.newObject("PartDesign::Pocket", "Pocket014")
pocket15.Profile = sketch20
pocket15.Type = "UpToFirst"

# Sketch on YZ plane
sketch21 = body.newObject("Sketcher::SketchObject", "Sketch020")
sketch21.AttachmentSupport = (doc.getObject("YZ_Plane"), [""])
sketch21.MapMode = "FlatFace"
sketch21.AttachmentOffset = App.Placement(V(0, 0, 104.290772), App.Rotation())
sketch21.addGeometry(Part.Circle(V(25.4, -55.4, 0), V(0, 0, 1), 1.8), False)
sketch21.addConstraint([
    Sketcher.Constraint("Diameter", 0, 3.6),
    Sketcher.Constraint("DistanceY", 0, 3, -1, 1, 55.42335),
    Sketcher.Constraint("DistanceX", -1, 1, 0, 3, 25.359295),
])
pocket16 = body.newObject("PartDesign::Pocket", "Pocket015")
pocket16.Profile = sketch21
pocket16.Type = "UpToFirst"

# Sketch on YZ plane
sketch22 = body.newObject("Sketcher::SketchObject", "Sketch021")
sketch22.AttachmentSupport = (doc.getObject("YZ_Plane"), [""])
sketch22.MapMode = "FlatFace"
sketch22.AttachmentOffset = App.Placement(V(0, 0, 104.290772), App.Rotation())
sketch22.addGeometry(Part.Circle(V(35, -53.5, 0), V(0, 0, 1), 0.9), False)
sketch22.addConstraint([
    Sketcher.Constraint("Diameter", 0, 1.75),
    Sketcher.Constraint("DistanceX", -1, 1, 0, 3, 34.95109),
    Sketcher.Constraint("DistanceY", 0, 3, -1, 1, 53.505684),
])
pocket17 = body.newObject("PartDesign::Pocket", "Pocket016")
pocket17.Profile = sketch22
pocket17.Type = "UpToFirst"

# Sketch on YZ plane
sketch23 = body.newObject("Sketcher::SketchObject", "Sketch022")
sketch23.AttachmentSupport = (doc.getObject("YZ_Plane"), [""])
sketch23.MapMode = "FlatFace"
sketch23.AttachmentOffset = App.Placement(V(0, 0, 104.290772), App.Rotation())
sketch23.addGeometry(Part.Circle(V(40.4, -40.4, 0), V(0, 0, 1), 1.8), False)
sketch23.addConstraint([
    Sketcher.Constraint("Diameter", 0, 3.6),
    Sketcher.Constraint("DistanceY", 0, 3, -1, 1, 40.42656),
    Sketcher.Constraint("DistanceX", -1, 1, 0, 3, 40.362505),
])
pocket18 = body.newObject("PartDesign::Pocket", "Pocket017")
pocket18.Profile = sketch23
pocket18.Type = "UpToFirst"

# Sketch on YZ plane
sketch24 = body.newObject("Sketcher::SketchObject", "Sketch023")
sketch24.AttachmentSupport = (doc.getObject("YZ_Plane"), [""])
sketch24.MapMode = "FlatFace"
sketch24.AttachmentOffset = App.Placement(V(0, 0, 104.290772), App.Rotation())
sketch24.addGeometry(Part.Circle(V(38.4, -30.8, 0), V(0, 0, 1), 0.9), False)
sketch24.addConstraint([
    Sketcher.Constraint("Diameter", 0, 1.75),
    Sketcher.Constraint("DistanceX", -1, 1, 0, 3, 38.444838),
    Sketcher.Constraint("DistanceY", 0, 3, -1, 1, 30.834766),
])
pocket19 = body.newObject("PartDesign::Pocket", "Pocket018")
pocket19.Profile = sketch24
pocket19.Type = "UpToFirst"

# Sketch on YZ plane
sketch25 = body.newObject("Sketcher::SketchObject", "Sketch024")
sketch25.AttachmentSupport = (doc.getObject("YZ_Plane"), [""])
sketch25.MapMode = "FlatFace"
sketch25.AttachmentOffset = App.Placement(V(0, 0, 104.290772), App.Rotation())
sketch25.addGeometry(Part.Circle(V(44, -26.9, 0), V(0, 0, 1), 1.5), False)
sketch25.addConstraint([
    Sketcher.Constraint("Diameter", 0, 3.0),
    Sketcher.Constraint("DistanceX", -1, 1, 0, 3, 43.952518),
    Sketcher.Constraint("DistanceY", 0, 3, -1, 1, 26.863426),
])
pocket20 = body.newObject("PartDesign::Pocket", "Pocket019")
pocket20.Profile = sketch25
pocket20.Type = "UpToFirst"

# Sketch on YZ plane
sketch26 = body.newObject("Sketcher::SketchObject", "Sketch025")
sketch26.AttachmentSupport = (doc.getObject("YZ_Plane"), [""])
sketch26.MapMode = "FlatFace"
sketch26.AttachmentOffset = App.Placement(V(0, 0, 104.290772), App.Rotation())
sketch26.addGeometry(Part.Circle(V(25.4, -25.4, 0), V(0, 0, 1), 1.8), False)
sketch26.addConstraint([
    Sketcher.Constraint("Diameter", 0, 3.6),
    Sketcher.Constraint("DistanceY", 0, 3, -1, 1, 25.42335),
    Sketcher.Constraint("DistanceX", -1, 1, 0, 3, 25.365715),
])
pocket21 = body.newObject("PartDesign::Pocket", "Pocket020")
pocket21.Profile = sketch26
pocket21.Type = "UpToFirst"

# Sketch on YZ plane
sketch27 = body.newObject("Sketcher::SketchObject", "Sketch026")
sketch27.AttachmentSupport = (doc.getObject("YZ_Plane"), [""])
sketch27.MapMode = "FlatFace"
sketch27.AttachmentOffset = App.Placement(V(0, 0, 104.290772), App.Rotation())
sketch27.addGeometry(Part.Circle(V(15.8, -27.3, 0), V(0, 0, 1), 0.9), False)
sketch27.addConstraint([
    Sketcher.Constraint("Diameter", 0, 1.75),
    Sketcher.Constraint("DistanceX", -1, 1, 0, 3, 15.77392),
    Sketcher.Constraint("DistanceY", 0, 3, -1, 1, 27.341017),
])
pocket22 = body.newObject("PartDesign::Pocket", "Pocket021")
pocket22.Profile = sketch27
pocket22.Type = "UpToFirst"

# Sketch on YZ plane
sketch28 = body.newObject("Sketcher::SketchObject", "Sketch027")
sketch28.AttachmentSupport = (doc.getObject("YZ_Plane"), [""])
sketch28.MapMode = "FlatFace"
sketch28.AttachmentOffset = App.Placement(V(0, 0, 104.290772), App.Rotation())
sketch28.addGeometry(Part.Circle(V(10.4, -40.4, 0), V(0, 0, 1), 1.8), False)
sketch28.addConstraint([
    Sketcher.Constraint("Diameter", 0, 3.6),
    Sketcher.Constraint("DistanceY", 0, 3, -1, 1, 40.42014),
    Sketcher.Constraint("DistanceX", -1, 1, 0, 3, 10.362505),
])
pocket23 = body.newObject("PartDesign::Pocket", "Pocket022")
pocket23.Profile = sketch28
pocket23.Type = "UpToFirst"

# Sketch on YZ plane
sketch29 = body.newObject("Sketcher::SketchObject", "Sketch028")
sketch29.AttachmentSupport = (doc.getObject("YZ_Plane"), [""])
sketch29.MapMode = "FlatFace"
sketch29.AttachmentOffset = App.Placement(V(0, 0, 104.290772), App.Rotation())
sketch29.addGeometry(Part.Circle(V(12.3, -50, 0), V(0, 0, 1), 0.9), False)
sketch29.addConstraint([
    Sketcher.Constraint("Diameter", 0, 1.75),
    Sketcher.Constraint("DistanceX", -1, 1, 0, 3, 12.280172),
    Sketcher.Constraint("DistanceY", 0, 3, -1, 1, 50.011935),
])
pocket24 = body.newObject("PartDesign::Pocket", "Pocket023")
pocket24.Profile = sketch29
pocket24.Type = "UpToFirst"

# Sketch on YZ plane
sketch30 = body.newObject("Sketcher::SketchObject", "Sketch029")
sketch30.AttachmentSupport = (doc.getObject("YZ_Plane"), [""])
sketch30.MapMode = "FlatFace"
sketch30.AttachmentOffset = App.Placement(V(0, 0, 104.290772), App.Rotation())
sketch30.addGeometry(Part.Circle(V(6.8, -54, 0), V(0, 0, 1), 1.5), False)
sketch30.addConstraint([
    Sketcher.Constraint("Diameter", 0, 3.0),
    Sketcher.Constraint("DistanceX", -1, 1, 0, 3, 6.772493),
    Sketcher.Constraint("DistanceY", 0, 3, -1, 1, 53.983274),
])
pocket25 = body.newObject("PartDesign::Pocket", "Pocket024")
pocket25.Profile = sketch30
pocket25.Type = "UpToFirst"

# Sketch on YZ plane
sketch31 = body.newObject("Sketcher::SketchObject", "Sketch030")
sketch31.AttachmentSupport = (doc.getObject("YZ_Plane"), [""])
sketch31.MapMode = "FlatFace"
sketch31.AttachmentOffset = App.Placement(V(0, 0, 104.290772), App.Rotation())
sketch31.addGeometry(Part.Circle(V(11.8, -21.8, 0), V(0, 0, 1), 1.5), False)
sketch31.addConstraint([
    Sketcher.Constraint("Diameter", 0, 3.0),
    Sketcher.Constraint("DistanceX", -1, 1, 0, 3, 11.802581),
    Sketcher.Constraint("DistanceY", 0, 3, -1, 1, 21.833338),
])
pocket26 = body.newObject("PartDesign::Pocket", "Pocket025")
pocket26.Profile = sketch31
pocket26.Type = "UpToFirst"

# Sketch on XZ plane
sketch32 = body.newObject("Sketcher::SketchObject", "Sketch031")
sketch32.AttachmentSupport = (doc.getObject("XZ_Plane"), [""])
sketch32.MapMode = "FlatFace"
sketch32.AttachmentOffset = App.Placement(V(0, 0, -50), App.Rotation())
sketch32.addGeometry([
    Part.LineSegment(V(-34.7, -64.4, 0), V(-34.7, -55.5, 0)),  # 0
    Part.LineSegment(V(-34.7, -55.5, 0), V(44.2, -55.5, 0)),  # 1
    Part.LineSegment(V(44.2, -55.5, 0), V(44.2, -64.4, 0)),  # 2
    Part.LineSegment(V(44.2, -64.4, 0), V(-34.7, -64.4, 0)),  # 3
    Part.Circle(V(4.7, -59.8, 0), V(0, 0, 1), 2.9),  # 4
], False)
sketch32.addConstraint([
    Sketcher.Constraint("Coincident", 0, 2, 1, 1),
    Sketcher.Constraint("Coincident", 1, 2, 2, 1),
    Sketcher.Constraint("Coincident", 2, 2, 3, 1),
    Sketcher.Constraint("Coincident", 3, 2, 0, 1),
    Sketcher.Constraint("Vertical", 0),
    Sketcher.Constraint("Horizontal", 1),
    Sketcher.Constraint("Vertical", 2),
    Sketcher.Constraint("Horizontal", 3),
    Sketcher.Constraint("Diameter", 4, 5.798075),
    Sketcher.Constraint("DistanceX", 1, 1, 1, 2, 78.871459),
    Sketcher.Constraint("DistanceY", 0, 1, 0, 2, 8.833029),
    Sketcher.Constraint("DistanceY", 4, 3, -1, 1, 59.785179),
    Sketcher.Constraint("DistanceY", 0, 2, -1, 1, 55.532238),
    Sketcher.Constraint("DistanceX", 0, 2, 4, 3, 39.43573),
    Sketcher.Constraint("DistanceX", -1, 1, 4, 3, 4.738145),
])
pad5 = body.newObject("PartDesign::Pad", "Pad004")
pad5.Profile = sketch32
pad5.Length = 5
pad5.Reversed = True

# Sketch on XZ plane
sketch33 = body.newObject("Sketcher::SketchObject", "Sketch032")
sketch33.AttachmentSupport = (doc.getObject("XZ_Plane"), [""])
sketch33.MapMode = "FlatFace"
sketch33.AttachmentOffset = App.Placement(V(0, 0, -50), App.Rotation())
sketch33.addGeometry([
    Part.LineSegment(V(60.8, -81.1, 0), V(60.8, -0.2, 0)),  # 0
    Part.LineSegment(V(60.8, -0.2, 0), V(67.2, -0.2, 0)),  # 1
    Part.LineSegment(V(67.2, -0.2, 0), V(67.2, -81.1, 0)),  # 2
    Part.LineSegment(V(67.2, -81.1, 0), V(60.8, -81.1, 0)),  # 3
    Part.Circle(V(64.2, -38.6, 0), V(0, 0, 1), 2.1),  # 4
], False)
sketch33.addConstraint([
    Sketcher.Constraint("Coincident", 0, 2, 1, 1),
    Sketcher.Constraint("Coincident", 1, 2, 2, 1),
    Sketcher.Constraint("Coincident", 2, 2, 3, 1),
    Sketcher.Constraint("Coincident", 3, 2, 0, 1),
    Sketcher.Constraint("Vertical", 0),
    Sketcher.Constraint("Horizontal", 1),
    Sketcher.Constraint("Vertical", 2),
    Sketcher.Constraint("Horizontal", 3),
    Sketcher.Constraint("Diameter", 4, 4.25294),
    Sketcher.Constraint("DistanceX", 1, 1, 1, 2, 6.435111),
    Sketcher.Constraint("DistanceY", 0, 1, 0, 2, 80.846331),
    Sketcher.Constraint("DistanceX", -1, 1, 0, 2, 60.767299),
    Sketcher.Constraint("DistanceY", 4, 3, -1, 1, 38.579731),
    Sketcher.Constraint("DistanceX", -1, 1, 4, 3, 64.209206),
    Sketcher.Constraint("DistanceY", 0, 2, -1, 1, 0.218224),
])
pad6 = body.newObject("PartDesign::Pad", "Pad005")
pad6.Profile = sketch33
pad6.Length = 5
pad6.Reversed = True

doc.recompute()
